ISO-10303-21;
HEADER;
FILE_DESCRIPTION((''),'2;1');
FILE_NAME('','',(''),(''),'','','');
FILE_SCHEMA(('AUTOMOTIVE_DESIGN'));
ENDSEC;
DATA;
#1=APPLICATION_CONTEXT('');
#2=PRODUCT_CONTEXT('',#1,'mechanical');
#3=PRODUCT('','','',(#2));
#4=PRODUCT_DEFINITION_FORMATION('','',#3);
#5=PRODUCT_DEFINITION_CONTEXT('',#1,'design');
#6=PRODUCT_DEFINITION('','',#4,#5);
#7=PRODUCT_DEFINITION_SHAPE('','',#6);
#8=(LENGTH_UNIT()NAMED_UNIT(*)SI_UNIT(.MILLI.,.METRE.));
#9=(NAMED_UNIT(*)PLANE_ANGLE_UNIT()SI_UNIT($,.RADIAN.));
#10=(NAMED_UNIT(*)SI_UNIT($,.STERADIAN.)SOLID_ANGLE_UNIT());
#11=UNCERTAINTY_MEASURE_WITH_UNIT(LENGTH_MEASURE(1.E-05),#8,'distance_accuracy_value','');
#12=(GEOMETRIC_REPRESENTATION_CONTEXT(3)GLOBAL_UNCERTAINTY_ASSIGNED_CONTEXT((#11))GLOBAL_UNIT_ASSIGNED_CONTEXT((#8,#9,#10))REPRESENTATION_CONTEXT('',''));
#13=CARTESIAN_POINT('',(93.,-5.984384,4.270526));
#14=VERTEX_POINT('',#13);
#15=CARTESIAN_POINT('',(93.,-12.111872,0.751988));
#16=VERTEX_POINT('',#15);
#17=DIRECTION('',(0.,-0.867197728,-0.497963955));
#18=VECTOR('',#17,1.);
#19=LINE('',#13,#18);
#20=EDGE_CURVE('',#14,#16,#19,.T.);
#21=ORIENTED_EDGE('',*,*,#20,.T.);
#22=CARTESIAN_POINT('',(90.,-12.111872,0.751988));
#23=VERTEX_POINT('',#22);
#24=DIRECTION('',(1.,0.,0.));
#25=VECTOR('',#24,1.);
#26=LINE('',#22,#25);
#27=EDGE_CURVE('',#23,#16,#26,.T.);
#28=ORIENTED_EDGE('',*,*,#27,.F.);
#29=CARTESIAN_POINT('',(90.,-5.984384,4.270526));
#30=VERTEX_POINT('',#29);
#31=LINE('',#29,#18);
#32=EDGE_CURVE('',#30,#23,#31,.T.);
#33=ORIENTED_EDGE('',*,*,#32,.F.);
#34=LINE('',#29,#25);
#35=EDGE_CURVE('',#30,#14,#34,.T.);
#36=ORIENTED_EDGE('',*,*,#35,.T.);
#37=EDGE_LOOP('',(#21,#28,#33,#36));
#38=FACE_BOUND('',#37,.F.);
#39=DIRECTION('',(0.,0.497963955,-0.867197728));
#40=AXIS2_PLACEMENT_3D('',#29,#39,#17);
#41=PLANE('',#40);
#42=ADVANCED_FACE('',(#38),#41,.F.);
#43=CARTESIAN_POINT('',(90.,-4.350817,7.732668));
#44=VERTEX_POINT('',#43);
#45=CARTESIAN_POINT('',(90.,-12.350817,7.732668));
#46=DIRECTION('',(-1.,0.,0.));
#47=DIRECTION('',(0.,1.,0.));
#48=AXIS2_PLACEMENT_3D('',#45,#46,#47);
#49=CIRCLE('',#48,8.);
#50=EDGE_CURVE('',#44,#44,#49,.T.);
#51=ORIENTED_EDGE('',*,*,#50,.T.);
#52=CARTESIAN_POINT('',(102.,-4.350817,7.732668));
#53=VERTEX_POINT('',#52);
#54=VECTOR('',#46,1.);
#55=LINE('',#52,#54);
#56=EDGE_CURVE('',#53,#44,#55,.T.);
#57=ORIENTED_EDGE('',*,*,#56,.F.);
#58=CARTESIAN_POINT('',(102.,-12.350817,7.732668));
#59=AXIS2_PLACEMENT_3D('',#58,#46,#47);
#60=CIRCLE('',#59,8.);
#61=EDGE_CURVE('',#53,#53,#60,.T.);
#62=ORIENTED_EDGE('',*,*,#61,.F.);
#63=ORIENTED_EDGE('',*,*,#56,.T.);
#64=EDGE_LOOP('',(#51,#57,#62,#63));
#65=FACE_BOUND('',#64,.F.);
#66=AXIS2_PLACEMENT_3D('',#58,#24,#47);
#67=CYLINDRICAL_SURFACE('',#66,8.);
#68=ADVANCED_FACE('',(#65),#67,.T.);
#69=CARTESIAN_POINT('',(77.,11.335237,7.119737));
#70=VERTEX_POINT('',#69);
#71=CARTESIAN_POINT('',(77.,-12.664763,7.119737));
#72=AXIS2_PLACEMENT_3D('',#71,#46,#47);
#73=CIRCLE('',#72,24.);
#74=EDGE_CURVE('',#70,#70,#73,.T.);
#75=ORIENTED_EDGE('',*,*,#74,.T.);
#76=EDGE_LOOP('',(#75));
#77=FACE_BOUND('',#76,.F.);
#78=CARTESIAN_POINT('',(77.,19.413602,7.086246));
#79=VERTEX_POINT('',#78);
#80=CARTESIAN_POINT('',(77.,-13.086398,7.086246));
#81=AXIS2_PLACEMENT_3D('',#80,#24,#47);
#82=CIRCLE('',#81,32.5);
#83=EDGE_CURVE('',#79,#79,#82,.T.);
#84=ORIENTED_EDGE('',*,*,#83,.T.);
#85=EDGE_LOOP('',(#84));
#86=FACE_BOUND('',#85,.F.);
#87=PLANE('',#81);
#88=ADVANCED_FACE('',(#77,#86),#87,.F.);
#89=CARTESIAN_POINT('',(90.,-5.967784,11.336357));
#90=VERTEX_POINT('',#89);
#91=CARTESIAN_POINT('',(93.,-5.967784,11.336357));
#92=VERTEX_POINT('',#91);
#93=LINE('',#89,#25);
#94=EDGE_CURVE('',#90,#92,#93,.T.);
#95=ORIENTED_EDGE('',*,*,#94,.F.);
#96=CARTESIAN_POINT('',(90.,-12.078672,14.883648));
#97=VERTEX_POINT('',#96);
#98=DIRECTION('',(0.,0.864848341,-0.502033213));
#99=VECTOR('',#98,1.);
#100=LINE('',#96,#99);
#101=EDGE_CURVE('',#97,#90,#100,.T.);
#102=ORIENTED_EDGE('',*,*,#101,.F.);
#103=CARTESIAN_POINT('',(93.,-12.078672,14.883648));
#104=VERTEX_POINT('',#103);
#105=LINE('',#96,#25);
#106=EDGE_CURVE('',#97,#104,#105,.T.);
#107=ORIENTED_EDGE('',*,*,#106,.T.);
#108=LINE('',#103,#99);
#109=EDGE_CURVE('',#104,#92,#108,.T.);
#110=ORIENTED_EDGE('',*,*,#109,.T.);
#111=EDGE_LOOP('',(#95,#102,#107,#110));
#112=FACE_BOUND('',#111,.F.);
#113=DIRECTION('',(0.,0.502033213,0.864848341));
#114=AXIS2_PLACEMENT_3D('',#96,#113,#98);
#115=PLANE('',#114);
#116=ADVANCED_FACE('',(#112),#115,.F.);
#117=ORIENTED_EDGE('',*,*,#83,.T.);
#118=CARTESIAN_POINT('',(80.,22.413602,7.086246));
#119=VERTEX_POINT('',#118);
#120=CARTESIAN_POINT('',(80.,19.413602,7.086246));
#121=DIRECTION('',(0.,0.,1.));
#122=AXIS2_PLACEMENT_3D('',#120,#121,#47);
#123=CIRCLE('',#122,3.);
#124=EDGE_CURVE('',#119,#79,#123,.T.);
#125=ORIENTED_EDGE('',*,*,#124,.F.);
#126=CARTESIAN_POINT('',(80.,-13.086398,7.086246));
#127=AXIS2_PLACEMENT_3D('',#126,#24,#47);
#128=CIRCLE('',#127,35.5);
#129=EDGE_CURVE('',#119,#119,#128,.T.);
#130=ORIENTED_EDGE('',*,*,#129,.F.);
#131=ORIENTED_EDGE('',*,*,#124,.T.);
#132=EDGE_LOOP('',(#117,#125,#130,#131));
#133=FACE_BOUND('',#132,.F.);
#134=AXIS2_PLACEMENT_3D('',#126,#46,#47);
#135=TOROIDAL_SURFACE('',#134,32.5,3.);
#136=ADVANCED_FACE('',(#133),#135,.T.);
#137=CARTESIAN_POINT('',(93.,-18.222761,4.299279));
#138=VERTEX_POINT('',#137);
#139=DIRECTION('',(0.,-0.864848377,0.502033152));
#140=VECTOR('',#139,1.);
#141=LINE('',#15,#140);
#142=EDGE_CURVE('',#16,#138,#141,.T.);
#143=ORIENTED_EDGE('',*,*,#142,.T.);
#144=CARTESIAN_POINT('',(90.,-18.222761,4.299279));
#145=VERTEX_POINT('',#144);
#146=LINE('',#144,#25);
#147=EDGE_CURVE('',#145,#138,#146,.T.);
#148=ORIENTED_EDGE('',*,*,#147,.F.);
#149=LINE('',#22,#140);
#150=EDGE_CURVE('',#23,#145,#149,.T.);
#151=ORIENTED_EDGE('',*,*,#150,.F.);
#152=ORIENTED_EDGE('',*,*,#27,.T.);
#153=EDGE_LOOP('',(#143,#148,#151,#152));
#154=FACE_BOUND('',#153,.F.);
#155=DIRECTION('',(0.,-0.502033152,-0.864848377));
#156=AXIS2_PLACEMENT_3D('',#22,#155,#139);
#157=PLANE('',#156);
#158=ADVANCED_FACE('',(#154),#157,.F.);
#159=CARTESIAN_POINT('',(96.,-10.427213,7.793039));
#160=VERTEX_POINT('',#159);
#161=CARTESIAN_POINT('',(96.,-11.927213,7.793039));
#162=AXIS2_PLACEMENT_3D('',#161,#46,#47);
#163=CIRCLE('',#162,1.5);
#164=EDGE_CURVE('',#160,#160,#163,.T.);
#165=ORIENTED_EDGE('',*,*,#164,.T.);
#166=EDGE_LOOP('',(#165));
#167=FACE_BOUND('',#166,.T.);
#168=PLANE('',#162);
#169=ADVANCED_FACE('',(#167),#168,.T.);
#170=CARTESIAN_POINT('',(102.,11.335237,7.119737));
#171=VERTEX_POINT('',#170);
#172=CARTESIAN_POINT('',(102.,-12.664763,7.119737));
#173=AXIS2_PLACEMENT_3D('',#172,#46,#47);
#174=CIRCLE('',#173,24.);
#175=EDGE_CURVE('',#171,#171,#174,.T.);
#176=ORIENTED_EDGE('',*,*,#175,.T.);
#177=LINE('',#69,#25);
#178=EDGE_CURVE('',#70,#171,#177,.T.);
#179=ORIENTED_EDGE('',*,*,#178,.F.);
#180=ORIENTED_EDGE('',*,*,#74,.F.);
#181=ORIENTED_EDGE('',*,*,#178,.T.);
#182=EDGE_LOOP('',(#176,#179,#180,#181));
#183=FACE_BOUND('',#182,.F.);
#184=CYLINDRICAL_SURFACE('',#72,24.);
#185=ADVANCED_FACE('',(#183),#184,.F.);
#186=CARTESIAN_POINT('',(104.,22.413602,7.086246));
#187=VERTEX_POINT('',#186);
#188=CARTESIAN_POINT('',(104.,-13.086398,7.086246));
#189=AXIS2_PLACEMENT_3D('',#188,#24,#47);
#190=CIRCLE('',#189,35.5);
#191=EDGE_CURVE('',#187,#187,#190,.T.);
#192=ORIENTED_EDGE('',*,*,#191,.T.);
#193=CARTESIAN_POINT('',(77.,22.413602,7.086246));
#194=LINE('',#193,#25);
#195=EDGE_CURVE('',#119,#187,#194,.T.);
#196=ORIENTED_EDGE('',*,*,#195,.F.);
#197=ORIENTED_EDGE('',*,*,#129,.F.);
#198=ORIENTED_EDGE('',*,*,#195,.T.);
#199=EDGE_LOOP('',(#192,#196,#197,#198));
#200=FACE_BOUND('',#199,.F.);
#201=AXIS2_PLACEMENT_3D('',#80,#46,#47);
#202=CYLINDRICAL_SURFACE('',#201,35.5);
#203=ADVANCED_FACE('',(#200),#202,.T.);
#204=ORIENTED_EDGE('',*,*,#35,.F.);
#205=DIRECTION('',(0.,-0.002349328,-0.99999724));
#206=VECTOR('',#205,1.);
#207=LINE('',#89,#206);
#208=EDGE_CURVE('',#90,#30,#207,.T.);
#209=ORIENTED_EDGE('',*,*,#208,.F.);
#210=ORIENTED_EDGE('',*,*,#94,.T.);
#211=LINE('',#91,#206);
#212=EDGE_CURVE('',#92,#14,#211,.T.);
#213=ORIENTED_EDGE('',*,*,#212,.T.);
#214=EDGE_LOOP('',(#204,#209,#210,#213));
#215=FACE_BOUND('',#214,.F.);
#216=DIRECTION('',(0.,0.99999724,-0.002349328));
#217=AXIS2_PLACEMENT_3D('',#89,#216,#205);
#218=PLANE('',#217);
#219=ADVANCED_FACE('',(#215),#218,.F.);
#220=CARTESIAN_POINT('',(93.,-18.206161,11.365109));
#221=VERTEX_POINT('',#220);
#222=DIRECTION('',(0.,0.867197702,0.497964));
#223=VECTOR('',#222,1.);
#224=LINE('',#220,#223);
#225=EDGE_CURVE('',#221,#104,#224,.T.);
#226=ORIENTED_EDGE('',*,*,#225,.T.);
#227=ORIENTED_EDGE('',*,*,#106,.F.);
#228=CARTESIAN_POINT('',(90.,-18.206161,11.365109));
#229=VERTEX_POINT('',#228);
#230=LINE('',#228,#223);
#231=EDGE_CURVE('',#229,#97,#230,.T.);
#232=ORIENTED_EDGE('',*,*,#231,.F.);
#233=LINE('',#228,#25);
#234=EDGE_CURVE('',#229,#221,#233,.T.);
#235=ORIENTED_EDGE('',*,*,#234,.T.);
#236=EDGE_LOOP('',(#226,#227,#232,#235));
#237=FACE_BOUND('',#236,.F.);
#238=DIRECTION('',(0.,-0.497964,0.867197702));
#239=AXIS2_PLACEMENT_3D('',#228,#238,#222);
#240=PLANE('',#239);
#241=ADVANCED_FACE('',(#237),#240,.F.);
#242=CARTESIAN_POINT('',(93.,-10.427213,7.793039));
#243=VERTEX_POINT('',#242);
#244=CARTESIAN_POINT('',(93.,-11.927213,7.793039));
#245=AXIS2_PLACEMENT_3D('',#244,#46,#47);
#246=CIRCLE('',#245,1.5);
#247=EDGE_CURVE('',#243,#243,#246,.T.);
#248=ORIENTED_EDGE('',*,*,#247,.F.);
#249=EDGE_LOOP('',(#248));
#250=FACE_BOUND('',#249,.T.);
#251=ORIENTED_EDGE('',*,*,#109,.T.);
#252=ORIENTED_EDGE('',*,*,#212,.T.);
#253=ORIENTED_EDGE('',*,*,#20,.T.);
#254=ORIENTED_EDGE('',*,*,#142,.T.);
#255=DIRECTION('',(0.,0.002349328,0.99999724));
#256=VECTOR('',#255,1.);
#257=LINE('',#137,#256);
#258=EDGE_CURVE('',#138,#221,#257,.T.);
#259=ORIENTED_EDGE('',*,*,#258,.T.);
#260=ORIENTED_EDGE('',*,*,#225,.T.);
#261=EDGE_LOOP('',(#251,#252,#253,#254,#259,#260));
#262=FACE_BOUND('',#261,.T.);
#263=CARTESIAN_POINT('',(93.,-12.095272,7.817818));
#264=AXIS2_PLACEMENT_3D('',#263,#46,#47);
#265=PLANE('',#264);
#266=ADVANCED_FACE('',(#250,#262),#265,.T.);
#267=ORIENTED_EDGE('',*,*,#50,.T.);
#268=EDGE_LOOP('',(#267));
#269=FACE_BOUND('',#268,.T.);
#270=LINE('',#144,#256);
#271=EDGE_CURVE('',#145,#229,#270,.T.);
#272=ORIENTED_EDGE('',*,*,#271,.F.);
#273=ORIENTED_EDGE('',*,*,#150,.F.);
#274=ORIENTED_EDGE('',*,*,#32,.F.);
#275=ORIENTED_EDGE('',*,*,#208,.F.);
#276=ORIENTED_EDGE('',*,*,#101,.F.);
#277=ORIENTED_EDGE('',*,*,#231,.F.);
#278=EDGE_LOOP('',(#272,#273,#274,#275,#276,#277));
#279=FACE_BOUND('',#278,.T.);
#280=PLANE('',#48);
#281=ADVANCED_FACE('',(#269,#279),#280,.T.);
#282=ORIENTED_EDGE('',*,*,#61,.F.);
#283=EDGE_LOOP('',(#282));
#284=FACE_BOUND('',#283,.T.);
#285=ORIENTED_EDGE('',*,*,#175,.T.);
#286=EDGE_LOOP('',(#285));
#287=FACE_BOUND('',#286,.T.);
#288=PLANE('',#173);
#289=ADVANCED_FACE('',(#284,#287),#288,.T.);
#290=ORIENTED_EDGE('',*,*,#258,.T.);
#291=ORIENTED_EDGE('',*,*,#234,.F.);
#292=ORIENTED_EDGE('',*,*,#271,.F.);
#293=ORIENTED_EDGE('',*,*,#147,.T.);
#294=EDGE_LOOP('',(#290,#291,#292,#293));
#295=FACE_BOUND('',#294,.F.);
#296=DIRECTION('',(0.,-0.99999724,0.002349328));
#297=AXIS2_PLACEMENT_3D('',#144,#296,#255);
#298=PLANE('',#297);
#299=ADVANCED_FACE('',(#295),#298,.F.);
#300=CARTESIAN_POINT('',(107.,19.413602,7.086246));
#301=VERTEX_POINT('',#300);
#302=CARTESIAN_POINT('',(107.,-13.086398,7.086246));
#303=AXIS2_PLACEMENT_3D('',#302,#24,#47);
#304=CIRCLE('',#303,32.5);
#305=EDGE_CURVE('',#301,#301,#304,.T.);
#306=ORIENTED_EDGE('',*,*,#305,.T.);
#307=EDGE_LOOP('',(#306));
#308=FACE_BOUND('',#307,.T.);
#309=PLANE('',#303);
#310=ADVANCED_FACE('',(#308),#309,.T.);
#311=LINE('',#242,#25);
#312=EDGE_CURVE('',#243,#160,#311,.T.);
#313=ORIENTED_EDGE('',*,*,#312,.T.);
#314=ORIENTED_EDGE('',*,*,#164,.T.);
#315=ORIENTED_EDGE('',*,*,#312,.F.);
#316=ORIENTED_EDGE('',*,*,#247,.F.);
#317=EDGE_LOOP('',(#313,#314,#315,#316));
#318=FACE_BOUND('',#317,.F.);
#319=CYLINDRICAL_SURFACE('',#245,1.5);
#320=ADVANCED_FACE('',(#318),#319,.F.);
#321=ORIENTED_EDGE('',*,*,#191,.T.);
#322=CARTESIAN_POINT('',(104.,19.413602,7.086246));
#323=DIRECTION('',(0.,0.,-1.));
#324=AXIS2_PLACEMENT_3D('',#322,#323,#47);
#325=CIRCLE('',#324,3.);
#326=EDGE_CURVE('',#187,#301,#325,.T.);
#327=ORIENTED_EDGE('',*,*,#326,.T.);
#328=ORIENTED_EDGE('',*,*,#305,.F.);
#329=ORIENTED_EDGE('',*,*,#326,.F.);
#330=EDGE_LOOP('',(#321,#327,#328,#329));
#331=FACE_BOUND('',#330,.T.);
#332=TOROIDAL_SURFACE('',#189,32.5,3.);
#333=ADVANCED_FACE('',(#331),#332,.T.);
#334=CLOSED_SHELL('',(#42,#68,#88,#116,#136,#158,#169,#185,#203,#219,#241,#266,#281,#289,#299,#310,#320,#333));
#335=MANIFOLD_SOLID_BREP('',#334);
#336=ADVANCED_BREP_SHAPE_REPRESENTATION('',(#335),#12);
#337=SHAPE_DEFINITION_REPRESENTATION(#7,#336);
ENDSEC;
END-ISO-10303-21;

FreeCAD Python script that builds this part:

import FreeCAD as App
import Part
import Sketcher
from FreeCAD import Vector
Q = App.Units.Quantity


def edges_at(feature, points):
    """Names of the edges that pass closest to the given points."""
    edges = feature.Shape.Edges
    near = lambda p: min(range(len(edges)), key=lambda i: edges[i].distToShape(Part.Vertex(*p))[0])
    return sorted({f"Edge{near(p) + 1}" for p in points})

doc = App.newDocument("Part")
body = doc.addObject("PartDesign::Body", "Body")

# Sketch on YZ plane
sketch1 = body.newObject("Sketcher::SketchObject", "Sketch")
sketch1.AttachmentSupport = (doc.getObject("YZ_Plane"), [""])
sketch1.MapMode = "FlatFace"
sketch1.addGeometry(Part.Circle(Vector(-2, 2, 0), Vector(0, 0, 1), 36), False)
sketch1.addConstraint(Sketcher.Constraint("Diameter", 0, Q("71 mm")))
sketch1.addConstraint(Sketcher.Constraint("DistanceX", 0, 3, -1, 1, Q("2.086398 mm")))
sketch1.addConstraint(Sketcher.Constraint("DistanceY", -1, 1, 0, 3, Q("2.086246 mm")))
pad1 = body.newObject("PartDesign::Pad", "Pad")
pad1.Profile = sketch1
pad1.Length = 30

# Sketch on YZ plane
sketch2 = body.newObject("Sketcher::SketchObject", "Sketch001")
sketch2.AttachmentSupport = (doc.getObject("YZ_Plane"), [""])
sketch2.MapMode = "FlatFace"
sketch2.addGeometry(Part.Circle(Vector(-2, 2, 0), Vector(0, 0, 1), 24), False)
sketch2.addConstraint(Sketcher.Constraint("Diameter", 0, Q("48 mm")))
sketch2.addConstraint(Sketcher.Constraint("DistanceX", 0, 3, -1, 1, Q("1.664763 mm")))
sketch2.addConstraint(Sketcher.Constraint("DistanceY", -1, 1, 0, 3, Q("2.119737 mm")))
pocket1 = body.newObject("PartDesign::Pocket", "Pocket")
pocket1.Profile = sketch2
pocket1.Length = 25
pocket1.Reversed = True

# Sketch on YZ plane
sketch3 = body.newObject("Sketcher::SketchObject", "Sketch002")
sketch3.AttachmentSupport = (doc.getObject("YZ_Plane"), [""])
sketch3.MapMode = "FlatFace"
sketch3.AttachmentOffset = App.Placement(Vector(0, 0, 25), App.Rotation())
sketch3.addGeometry(Part.Circle(Vector(-1, 3, 0), Vector(0, 0, 1), 8), False)
sketch3.addConstraint(Sketcher.Constraint("Diameter", 0, Q("16 mm")))
sketch3.addConstraint(Sketcher.Constraint("DistanceX", 0, 3, -1, 1, Q("1.350817 mm")))
sketch3.addConstraint(Sketcher.Constraint("DistanceY", -1, 1, 0, 3, Q("2.732668 mm")))
pad2 = body.newObject("PartDesign::Pad", "Pad001")
pad2.Profile = sketch3
pad2.Length = 12
pad2.Reversed = True

# Sketch on YZ plane
sketch4 = body.newObject("Sketcher::SketchObject", "Sketch003")
sketch4.AttachmentSupport = (doc.getObject("YZ_Plane"), [""])
sketch4.MapMode = "FlatFace"
sketch4.AttachmentOffset = App.Placement(Vector(0, 0, 13), App.Rotation())
sketch4.addGeometry(Part.LineSegment(Vector(-1, -4, 0), Vector(-7, -1, 0)), False)
sketch4.addGeometry(Part.LineSegment(Vector(-7, -1, 0), Vector(-7, 6, 0)), False)
sketch4.addGeometry(Part.LineSegment(Vector(-7, 6, 0), Vector(-1, 10, 0)), False)
sketch4.addGeometry(Part.LineSegment(Vector(-1, 10, 0), Vector(5, 6, 0)), False)
sketch4.addGeometry(Part.LineSegment(Vector(5, 6, 0), Vector(5, -1, 0)), False)
sketch4.addGeometry(Part.LineSegment(Vector(5, -1, 0), Vector(-1, -4, 0)), False)
sketch4.addConstraint(Sketcher.Constraint("Coincident", 0, 2, 1, 1))
sketch4.addConstraint(Sketcher.Constraint("Coincident", 1, 2, 2, 1))
sketch4.addConstraint(Sketcher.Constraint("Coincident", 2, 2, 3, 1))
sketch4.addConstraint(Sketcher.Constraint("Coincident", 3, 2, 4, 1))
sketch4.addConstraint(Sketcher.Constraint("Coincident", 4, 2, 5, 1))
sketch4.addConstraint(Sketcher.Constraint("Coincident", 5, 2, 0, 1))
sketch4.addConstraint(Sketcher.Constraint("Parallel", 0, 3))
sketch4.addConstraint(Sketcher.Constraint("Parallel", 1, 4))
sketch4.addConstraint(Sketcher.Constraint("Parallel", 2, 5))
sketch4.addConstraint(Sketcher.Constraint("Equal", 0, 1))
sketch4.addConstraint(Sketcher.Constraint("Equal", 1, 2))
sketch4.addConstraint(Sketcher.Constraint("Equal", 2, 3))
sketch4.addConstraint(Sketcher.Constraint("DistanceX", 0, 2, 1, 2, Q("0.0166 mm")))
sketch4.addConstraint(Sketcher.Constraint("DistanceX", 5, 2, 2, 2, Q("0.0332 mm")))
sketch4.addConstraint(Sketcher.Constraint("Distance", 0, Q("7.06585 mm")))
sketch4.addConstraint(Sketcher.Constraint("DistanceX", 0, 2, -1, 1, Q("7.222761 mm")))
sketch4.addConstraint(Sketcher.Constraint("DistanceY", 0, 2, -1, 1, Q("0.700721 mm")))
sketch4.addConstraint(Sketcher.Constraint("DistanceY", -1, 1, 2, 2, Q("9.883648 mm")))
pocket2 = body.newObject("PartDesign::Pocket", "Pocket001")
pocket2.Profile = sketch4
pocket2.Length = 3
pocket2.Reversed = True

# Sketch on YZ plane
sketch5 = body.newObject("Sketcher::SketchObject", "Sketch004")
sketch5.AttachmentSupport = (doc.getObject("YZ_Plane"), [""])
sketch5.MapMode = "FlatFace"
sketch5.AttachmentOffset = App.Placement(Vector(0, 0, 16), App.Rotation())
sketch5.addGeometry(Part.Circle(Vector(-0.9, 2.8, 0), Vector(0, 0, 1), 1.5), False)
sketch5.addConstraint(Sketcher.Constraint("Diameter", 0, Q("3 mm")))
sketch5.addConstraint(Sketcher.Constraint("DistanceY", -1, 1, 0, 3, Q("2.793039 mm")))
sketch5.addConstraint(Sketcher.Constraint("DistanceX", 0, 3, -1, 1, Q("0.927213 mm")))
pocket3 = body.newObject("PartDesign::Pocket", "Pocket002")
pocket3.Profile = sketch5
pocket3.Length = 3
pocket3.Reversed = True
doc.recompute()

fillet = body.newObject("PartDesign::Fillet", "Fillet")
fillet.Base = (pocket3, edges_at(pocket3, [(0, -37.586, 2.086)]))
fillet.Radius = 3
doc.recompute()

fillet2 = body.newObject("PartDesign::Fillet", "Fillet001")
fillet2.Base = (fillet, edges_at(fillet, [(30, -37.586, 2.086)]))
fillet2.Radius = 3
body2 = doc.addObject("PartDesign::Body", "Body001")
doc.recompute()

body.Placement = App.Placement(Vector(77, -11, 5), App.Rotation(Vector(0, 0, 1), 0))
boolean = body2.newObject("PartDesign::Boolean", "Boolean")
boolean.Type = "Fuse"
boolean.addObjects([body])

doc.recompute()
